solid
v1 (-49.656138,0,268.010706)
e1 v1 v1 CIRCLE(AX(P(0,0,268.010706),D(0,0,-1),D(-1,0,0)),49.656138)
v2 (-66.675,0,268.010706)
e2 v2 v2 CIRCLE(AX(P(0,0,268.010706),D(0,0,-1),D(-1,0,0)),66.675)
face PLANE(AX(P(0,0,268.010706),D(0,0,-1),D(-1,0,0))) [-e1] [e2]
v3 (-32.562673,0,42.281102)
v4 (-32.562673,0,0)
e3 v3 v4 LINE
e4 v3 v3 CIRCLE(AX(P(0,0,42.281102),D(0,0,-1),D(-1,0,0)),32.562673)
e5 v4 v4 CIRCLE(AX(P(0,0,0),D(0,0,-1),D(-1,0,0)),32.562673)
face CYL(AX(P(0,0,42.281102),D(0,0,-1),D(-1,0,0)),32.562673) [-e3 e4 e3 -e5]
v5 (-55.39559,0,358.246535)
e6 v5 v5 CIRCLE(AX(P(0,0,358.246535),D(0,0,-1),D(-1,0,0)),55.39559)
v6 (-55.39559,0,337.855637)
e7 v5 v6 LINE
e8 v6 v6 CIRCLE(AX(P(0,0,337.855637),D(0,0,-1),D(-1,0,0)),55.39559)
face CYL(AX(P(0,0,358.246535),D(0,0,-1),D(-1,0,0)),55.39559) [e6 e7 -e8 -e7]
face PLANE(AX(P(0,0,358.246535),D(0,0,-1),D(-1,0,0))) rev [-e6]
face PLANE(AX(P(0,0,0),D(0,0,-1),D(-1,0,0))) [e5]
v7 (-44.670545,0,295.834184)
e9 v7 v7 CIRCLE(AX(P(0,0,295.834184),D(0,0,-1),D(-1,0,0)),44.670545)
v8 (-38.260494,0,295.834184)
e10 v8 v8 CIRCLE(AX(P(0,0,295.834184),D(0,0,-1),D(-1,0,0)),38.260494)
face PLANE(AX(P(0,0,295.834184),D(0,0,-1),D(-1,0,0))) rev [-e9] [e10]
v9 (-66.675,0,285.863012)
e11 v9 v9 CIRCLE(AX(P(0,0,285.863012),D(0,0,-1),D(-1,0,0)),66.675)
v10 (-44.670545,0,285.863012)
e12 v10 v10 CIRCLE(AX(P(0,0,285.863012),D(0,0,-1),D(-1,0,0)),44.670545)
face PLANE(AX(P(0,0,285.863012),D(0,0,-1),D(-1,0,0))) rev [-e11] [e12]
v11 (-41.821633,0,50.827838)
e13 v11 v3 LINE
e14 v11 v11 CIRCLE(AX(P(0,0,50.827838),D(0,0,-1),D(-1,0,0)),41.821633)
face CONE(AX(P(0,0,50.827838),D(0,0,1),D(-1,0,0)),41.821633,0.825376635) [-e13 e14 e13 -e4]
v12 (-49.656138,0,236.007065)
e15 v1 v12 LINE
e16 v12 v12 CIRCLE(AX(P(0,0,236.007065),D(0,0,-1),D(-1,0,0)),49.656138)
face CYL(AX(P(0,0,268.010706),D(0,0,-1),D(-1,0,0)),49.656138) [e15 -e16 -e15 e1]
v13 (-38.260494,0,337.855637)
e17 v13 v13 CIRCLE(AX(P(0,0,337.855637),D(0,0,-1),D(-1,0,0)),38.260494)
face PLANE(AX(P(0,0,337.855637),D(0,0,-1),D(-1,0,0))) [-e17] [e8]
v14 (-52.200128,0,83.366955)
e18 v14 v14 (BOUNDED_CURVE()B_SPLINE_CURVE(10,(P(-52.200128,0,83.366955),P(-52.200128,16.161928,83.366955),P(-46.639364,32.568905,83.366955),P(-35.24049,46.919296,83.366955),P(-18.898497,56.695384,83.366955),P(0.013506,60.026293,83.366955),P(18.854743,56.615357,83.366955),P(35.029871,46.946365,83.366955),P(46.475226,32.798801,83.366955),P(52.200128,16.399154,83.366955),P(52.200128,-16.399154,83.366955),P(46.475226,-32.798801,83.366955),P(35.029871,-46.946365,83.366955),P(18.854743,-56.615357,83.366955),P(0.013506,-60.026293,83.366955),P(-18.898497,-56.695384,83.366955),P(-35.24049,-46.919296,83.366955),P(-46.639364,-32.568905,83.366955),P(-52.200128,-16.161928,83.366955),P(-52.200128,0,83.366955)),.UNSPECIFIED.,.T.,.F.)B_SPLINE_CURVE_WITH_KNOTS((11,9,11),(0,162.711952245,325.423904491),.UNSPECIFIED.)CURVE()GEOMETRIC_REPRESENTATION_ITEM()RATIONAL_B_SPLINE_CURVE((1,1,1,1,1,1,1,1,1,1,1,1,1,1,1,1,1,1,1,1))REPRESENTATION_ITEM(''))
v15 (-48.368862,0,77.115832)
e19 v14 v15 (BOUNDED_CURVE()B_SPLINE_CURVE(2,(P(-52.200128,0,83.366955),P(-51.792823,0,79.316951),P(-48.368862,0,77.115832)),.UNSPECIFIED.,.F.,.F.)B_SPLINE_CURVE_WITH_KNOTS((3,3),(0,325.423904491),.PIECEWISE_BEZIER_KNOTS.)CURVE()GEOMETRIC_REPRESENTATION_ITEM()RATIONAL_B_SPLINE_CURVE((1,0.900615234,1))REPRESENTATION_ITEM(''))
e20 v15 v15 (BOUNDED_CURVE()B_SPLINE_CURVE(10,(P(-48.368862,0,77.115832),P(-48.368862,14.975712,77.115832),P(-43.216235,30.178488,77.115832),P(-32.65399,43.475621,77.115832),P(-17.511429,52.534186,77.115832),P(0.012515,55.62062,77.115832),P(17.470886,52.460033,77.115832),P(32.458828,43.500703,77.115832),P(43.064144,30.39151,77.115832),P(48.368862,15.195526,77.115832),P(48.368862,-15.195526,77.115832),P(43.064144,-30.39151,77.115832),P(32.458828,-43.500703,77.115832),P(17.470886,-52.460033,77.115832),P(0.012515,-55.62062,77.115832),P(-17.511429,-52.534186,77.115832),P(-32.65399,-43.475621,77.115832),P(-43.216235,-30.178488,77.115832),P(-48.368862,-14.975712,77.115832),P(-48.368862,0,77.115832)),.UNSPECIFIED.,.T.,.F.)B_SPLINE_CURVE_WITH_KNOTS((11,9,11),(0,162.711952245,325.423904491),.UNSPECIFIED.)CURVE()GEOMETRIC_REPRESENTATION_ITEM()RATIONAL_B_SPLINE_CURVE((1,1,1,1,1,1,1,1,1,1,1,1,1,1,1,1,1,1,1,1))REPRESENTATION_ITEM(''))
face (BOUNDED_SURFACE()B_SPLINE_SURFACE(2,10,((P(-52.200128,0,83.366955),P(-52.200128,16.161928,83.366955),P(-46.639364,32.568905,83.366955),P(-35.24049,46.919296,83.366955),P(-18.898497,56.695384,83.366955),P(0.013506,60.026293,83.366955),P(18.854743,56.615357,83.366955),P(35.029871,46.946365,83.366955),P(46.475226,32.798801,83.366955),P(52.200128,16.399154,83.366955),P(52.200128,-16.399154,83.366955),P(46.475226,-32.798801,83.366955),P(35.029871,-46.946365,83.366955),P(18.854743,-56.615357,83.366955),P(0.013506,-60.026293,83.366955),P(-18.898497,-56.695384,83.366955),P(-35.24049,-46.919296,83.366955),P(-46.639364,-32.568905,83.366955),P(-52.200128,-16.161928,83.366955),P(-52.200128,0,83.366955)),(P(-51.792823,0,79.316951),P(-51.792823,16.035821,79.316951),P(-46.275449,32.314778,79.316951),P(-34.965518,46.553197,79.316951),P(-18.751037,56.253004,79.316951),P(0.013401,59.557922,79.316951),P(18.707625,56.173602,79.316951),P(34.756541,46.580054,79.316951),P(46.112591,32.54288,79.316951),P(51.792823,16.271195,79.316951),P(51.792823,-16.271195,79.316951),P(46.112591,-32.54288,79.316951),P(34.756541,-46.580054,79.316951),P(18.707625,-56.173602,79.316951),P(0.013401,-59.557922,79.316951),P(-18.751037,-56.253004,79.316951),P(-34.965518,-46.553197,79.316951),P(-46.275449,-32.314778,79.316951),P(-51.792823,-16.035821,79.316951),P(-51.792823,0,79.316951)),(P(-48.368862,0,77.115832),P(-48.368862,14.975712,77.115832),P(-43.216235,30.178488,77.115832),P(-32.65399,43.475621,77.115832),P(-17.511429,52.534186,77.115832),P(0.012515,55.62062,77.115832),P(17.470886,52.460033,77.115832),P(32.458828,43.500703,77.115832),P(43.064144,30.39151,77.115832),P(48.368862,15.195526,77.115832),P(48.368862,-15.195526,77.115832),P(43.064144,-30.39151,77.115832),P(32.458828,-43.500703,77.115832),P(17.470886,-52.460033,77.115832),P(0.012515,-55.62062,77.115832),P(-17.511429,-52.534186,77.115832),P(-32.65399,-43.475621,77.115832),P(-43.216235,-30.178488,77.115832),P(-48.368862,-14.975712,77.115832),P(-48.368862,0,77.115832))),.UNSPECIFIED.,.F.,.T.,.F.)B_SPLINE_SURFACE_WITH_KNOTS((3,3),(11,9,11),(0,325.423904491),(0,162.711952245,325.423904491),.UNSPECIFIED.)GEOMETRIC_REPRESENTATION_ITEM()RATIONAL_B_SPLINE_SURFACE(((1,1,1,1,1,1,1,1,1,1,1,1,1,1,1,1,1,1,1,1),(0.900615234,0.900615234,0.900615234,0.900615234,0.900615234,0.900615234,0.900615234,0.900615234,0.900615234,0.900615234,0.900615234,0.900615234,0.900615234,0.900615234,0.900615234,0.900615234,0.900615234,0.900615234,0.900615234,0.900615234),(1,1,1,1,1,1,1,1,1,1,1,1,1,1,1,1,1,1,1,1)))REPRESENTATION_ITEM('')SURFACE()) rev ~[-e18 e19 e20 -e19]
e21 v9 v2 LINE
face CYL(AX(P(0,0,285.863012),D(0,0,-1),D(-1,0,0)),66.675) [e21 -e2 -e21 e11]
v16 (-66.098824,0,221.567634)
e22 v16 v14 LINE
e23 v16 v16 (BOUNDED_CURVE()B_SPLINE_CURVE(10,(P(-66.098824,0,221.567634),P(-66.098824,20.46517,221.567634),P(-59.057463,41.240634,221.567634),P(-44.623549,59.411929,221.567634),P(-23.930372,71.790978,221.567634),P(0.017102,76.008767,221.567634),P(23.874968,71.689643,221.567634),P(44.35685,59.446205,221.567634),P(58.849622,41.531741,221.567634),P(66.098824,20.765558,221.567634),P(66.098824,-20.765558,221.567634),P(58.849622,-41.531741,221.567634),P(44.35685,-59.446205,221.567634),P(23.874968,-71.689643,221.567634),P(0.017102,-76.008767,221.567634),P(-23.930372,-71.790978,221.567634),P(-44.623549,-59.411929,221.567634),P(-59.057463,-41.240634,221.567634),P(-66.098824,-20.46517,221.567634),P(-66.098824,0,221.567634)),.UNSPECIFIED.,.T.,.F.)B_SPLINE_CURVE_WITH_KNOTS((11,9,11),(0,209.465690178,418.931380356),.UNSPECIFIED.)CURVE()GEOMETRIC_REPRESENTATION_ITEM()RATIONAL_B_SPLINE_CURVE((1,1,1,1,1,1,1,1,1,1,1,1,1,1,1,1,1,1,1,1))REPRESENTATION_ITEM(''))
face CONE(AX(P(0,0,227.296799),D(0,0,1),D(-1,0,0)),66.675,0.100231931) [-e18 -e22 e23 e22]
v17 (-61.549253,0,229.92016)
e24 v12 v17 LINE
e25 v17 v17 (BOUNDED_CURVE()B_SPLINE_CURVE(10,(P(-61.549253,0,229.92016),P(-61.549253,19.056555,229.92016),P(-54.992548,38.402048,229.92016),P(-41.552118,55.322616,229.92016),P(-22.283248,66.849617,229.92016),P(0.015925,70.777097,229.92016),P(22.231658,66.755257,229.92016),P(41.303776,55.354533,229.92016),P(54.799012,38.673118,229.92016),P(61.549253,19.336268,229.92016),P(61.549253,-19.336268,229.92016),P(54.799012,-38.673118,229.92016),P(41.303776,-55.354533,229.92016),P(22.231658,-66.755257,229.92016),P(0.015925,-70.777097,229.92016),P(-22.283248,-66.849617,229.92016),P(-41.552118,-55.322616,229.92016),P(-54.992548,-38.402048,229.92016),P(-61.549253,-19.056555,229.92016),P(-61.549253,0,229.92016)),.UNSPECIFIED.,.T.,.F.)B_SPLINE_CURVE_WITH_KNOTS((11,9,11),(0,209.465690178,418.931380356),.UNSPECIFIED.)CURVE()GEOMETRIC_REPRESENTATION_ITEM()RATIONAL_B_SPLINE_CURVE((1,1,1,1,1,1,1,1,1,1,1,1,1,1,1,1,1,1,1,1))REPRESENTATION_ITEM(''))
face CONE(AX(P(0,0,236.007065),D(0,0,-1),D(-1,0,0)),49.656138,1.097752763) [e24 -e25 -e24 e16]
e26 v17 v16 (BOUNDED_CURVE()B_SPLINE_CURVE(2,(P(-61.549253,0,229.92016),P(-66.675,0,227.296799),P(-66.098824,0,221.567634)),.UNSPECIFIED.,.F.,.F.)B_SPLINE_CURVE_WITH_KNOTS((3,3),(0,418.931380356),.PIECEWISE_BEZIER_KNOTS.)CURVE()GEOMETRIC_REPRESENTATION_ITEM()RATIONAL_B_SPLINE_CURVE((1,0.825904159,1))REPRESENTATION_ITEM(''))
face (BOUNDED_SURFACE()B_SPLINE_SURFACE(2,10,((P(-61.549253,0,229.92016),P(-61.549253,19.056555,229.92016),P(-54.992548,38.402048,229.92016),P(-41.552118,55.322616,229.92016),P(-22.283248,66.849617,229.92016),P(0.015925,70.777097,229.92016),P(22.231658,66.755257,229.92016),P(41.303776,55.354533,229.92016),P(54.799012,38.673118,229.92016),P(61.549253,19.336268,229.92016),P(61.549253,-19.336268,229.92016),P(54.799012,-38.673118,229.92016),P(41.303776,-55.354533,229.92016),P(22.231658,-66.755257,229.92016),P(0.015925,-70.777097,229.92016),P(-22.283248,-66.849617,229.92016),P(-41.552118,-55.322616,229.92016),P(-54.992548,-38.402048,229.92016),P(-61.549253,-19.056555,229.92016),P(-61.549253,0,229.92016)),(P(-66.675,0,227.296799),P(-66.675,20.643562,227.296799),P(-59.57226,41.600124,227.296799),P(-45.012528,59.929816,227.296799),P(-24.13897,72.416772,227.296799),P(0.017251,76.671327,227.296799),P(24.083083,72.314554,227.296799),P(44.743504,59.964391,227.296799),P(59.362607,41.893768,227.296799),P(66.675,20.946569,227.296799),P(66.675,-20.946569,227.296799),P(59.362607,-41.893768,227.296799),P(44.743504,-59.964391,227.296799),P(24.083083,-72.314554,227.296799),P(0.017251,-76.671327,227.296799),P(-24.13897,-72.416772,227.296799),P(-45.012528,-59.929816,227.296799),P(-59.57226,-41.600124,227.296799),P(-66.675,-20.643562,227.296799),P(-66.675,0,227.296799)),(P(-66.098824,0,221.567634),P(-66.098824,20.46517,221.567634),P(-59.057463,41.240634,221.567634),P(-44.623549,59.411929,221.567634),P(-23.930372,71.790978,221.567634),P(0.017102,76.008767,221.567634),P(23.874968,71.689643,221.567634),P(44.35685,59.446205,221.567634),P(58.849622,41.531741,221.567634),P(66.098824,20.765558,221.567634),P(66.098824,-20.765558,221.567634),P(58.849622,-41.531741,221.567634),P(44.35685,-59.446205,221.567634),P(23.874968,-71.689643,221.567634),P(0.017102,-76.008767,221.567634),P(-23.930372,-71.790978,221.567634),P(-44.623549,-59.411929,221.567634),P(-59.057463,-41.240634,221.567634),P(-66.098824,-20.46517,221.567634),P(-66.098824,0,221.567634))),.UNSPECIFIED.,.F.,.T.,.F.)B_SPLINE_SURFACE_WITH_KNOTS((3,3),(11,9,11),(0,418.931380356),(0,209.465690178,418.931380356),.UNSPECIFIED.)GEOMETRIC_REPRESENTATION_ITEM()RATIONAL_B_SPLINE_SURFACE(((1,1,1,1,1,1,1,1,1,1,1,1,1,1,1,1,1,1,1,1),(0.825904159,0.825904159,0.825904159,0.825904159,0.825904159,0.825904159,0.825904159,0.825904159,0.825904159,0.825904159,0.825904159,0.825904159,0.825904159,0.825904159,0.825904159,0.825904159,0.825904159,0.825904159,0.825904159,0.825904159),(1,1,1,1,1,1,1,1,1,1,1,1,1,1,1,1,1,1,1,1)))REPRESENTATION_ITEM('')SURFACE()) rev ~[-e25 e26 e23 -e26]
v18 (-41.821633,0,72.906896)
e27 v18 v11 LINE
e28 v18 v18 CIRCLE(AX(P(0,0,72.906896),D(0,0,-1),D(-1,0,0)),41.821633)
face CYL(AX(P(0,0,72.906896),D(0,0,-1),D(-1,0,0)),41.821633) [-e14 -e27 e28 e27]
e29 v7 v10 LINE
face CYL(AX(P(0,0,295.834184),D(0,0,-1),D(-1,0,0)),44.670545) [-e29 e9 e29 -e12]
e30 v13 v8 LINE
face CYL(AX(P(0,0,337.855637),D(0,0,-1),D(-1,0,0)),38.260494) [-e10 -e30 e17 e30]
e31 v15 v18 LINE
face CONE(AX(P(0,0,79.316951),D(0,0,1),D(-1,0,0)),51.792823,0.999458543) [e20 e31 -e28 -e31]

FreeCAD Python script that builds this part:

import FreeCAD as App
import Part
import Sketcher


def edges_at(feature, points):
    """Names of the edges that pass closest to the given points."""
    edges = feature.Shape.Edges
    near = lambda p: min(range(len(edges)), key=lambda i: edges[i].distToShape(Part.Vertex(*p))[0])
    return sorted({f"Edge{near(p) + 1}" for p in points})

doc = App.newDocument("Part")
params = doc.addObject("Spreadsheet::Sheet", "Params")
for row, (alias, value) in enumerate([
    ("revolution_angle", "360 deg"),
    ("fillet_radius", "8.434765 mm"),
], start=1):
    params.set(f"A{row}", alias)
    params.set(f"B{row}", "=" + value)
    params.setAlias(f"B{row}", alias)

body = doc.addObject("PartDesign::Body", "Body")

# Sketch on XZ plane
sketch1 = body.newObject("Sketcher::SketchObject", "Sketch")
sketch1.AttachmentSupport = (doc.getObject("XZ_Plane"), [""])
sketch1.MapMode = "FlatFace"
sketch1.addGeometry(Part.LineSegment(App.Vector(0, 0, 0), App.Vector(0, 358, 0)), False)
sketch1.addGeometry(Part.LineSegment(App.Vector(0, 358, 0), App.Vector(-55, 358, 0)), False)
sketch1.addGeometry(Part.LineSegment(App.Vector(-55, 358, 0), App.Vector(-55, 338, 0)), False)
sketch1.addGeometry(Part.LineSegment(App.Vector(-55, 338, 0), App.Vector(-38, 338, 0)), False)
sketch1.addGeometry(Part.LineSegment(App.Vector(-38, 338, 0), App.Vector(-38, 296, 0)), False)
sketch1.addGeometry(Part.LineSegment(App.Vector(-38, 296, 0), App.Vector(-45, 296, 0)), False)
sketch1.addGeometry(Part.LineSegment(App.Vector(-45, 296, 0), App.Vector(-45, 286, 0)), False)
sketch1.addGeometry(Part.LineSegment(App.Vector(-45, 286, 0), App.Vector(-67, 286, 0)), False)
sketch1.addGeometry(Part.LineSegment(App.Vector(-67, 286, 0), App.Vector(-67, 268, 0)), False)
sketch1.addGeometry(Part.LineSegment(App.Vector(-67, 268, 0), App.Vector(-50, 268, 0)), False)
sketch1.addGeometry(Part.LineSegment(App.Vector(-50, 268, 0), App.Vector(-50, 236, 0)), False)
sketch1.addGeometry(Part.LineSegment(App.Vector(-50, 236, 0), App.Vector(-67, 227, 0)), False)
sketch1.addGeometry(Part.LineSegment(App.Vector(-67, 227, 0), App.Vector(-52, 79, 0)), False)
sketch1.addGeometry(Part.LineSegment(App.Vector(-52, 79, 0), App.Vector(-42, 73, 0)), False)
sketch1.addGeometry(Part.LineSegment(App.Vector(-42, 73, 0), App.Vector(-42, 51, 0)), False)
sketch1.addGeometry(Part.LineSegment(App.Vector(-42, 51, 0), App.Vector(-33, 42, 0)), False)
sketch1.addGeometry(Part.LineSegment(App.Vector(-33, 42, 0), App.Vector(-33, 0, 0)), False)
sketch1.addGeometry(Part.LineSegment(App.Vector(-33, 0, 0), App.Vector(0, 0, 0)), False)
sketch1.addConstraint(Sketcher.Constraint("Coincident", 0, 2, 1, 1))
sketch1.addConstraint(Sketcher.Constraint("Coincident", 1, 2, 2, 1))
sketch1.addConstraint(Sketcher.Constraint("Coincident", 2, 2, 3, 1))
sketch1.addConstraint(Sketcher.Constraint("Coincident", 3, 2, 4, 1))
sketch1.addConstraint(Sketcher.Constraint("Coincident", 4, 2, 5, 1))
sketch1.addConstraint(Sketcher.Constraint("Coincident", 5, 2, 6, 1))
sketch1.addConstraint(Sketcher.Constraint("Coincident", 6, 2, 7, 1))
sketch1.addConstraint(Sketcher.Constraint("Coincident", 7, 2, 8, 1))
sketch1.addConstraint(Sketcher.Constraint("Coincident", 8, 2, 9, 1))
sketch1.addConstraint(Sketcher.Constraint("Coincident", 9, 2, 10, 1))
sketch1.addConstraint(Sketcher.Constraint("Coincident", 10, 2, 11, 1))
sketch1.addConstraint(Sketcher.Constraint("Coincident", 11, 2, 12, 1))
sketch1.addConstraint(Sketcher.Constraint("Coincident", 12, 2, 13, 1))
sketch1.addConstraint(Sketcher.Constraint("Coincident", 13, 2, 14, 1))
sketch1.addConstraint(Sketcher.Constraint("Coincident", 14, 2, 15, 1))
sketch1.addConstraint(Sketcher.Constraint("Coincident", 15, 2, 16, 1))
sketch1.addConstraint(Sketcher.Constraint("Coincident", 16, 2, 17, 1))
sketch1.addConstraint(Sketcher.Constraint("Coincident", 17, 2, 0, 1))
sketch1.addConstraint(Sketcher.Constraint("Vertical", 0))
sketch1.addConstraint(Sketcher.Constraint("Horizontal", 1))
sketch1.addConstraint(Sketcher.Constraint("Vertical", 2))
sketch1.addConstraint(Sketcher.Constraint("Horizontal", 3))
sketch1.addConstraint(Sketcher.Constraint("Vertical", 4))
sketch1.addConstraint(Sketcher.Constraint("Horizontal", 5))
sketch1.addConstraint(Sketcher.Constraint("Vertical", 6))
sketch1.addConstraint(Sketcher.Constraint("Horizontal", 7))
sketch1.addConstraint(Sketcher.Constraint("Vertical", 8))
sketch1.addConstraint(Sketcher.Constraint("Horizontal", 9))
sketch1.addConstraint(Sketcher.Constraint("Vertical", 10))
sketch1.addConstraint(Sketcher.Constraint("Vertical", 14))
sketch1.addConstraint(Sketcher.Constraint("Vertical", 16))
sketch1.addConstraint(Sketcher.Constraint("Horizontal", 17))
sketch1.addConstraint(Sketcher.Constraint("Coincident", 17, 2, -1, 1))
sketch1.addConstraint(Sketcher.Constraint("Vertical", 8, 2, 11, 2))
sketch1.addConstraint(Sketcher.Constraint("DistanceY", 16, 2, 16, 1, 42.281102))
sketch1.addConstraint(Sketcher.Constraint("DistanceX", 7, 2, -1, 1, 66.675))
sketch1.addConstraint(Sketcher.Constraint("DistanceX", 1, 2, 1, 1, 55.39559))
sketch1.addConstraint(Sketcher.Constraint("DistanceX", 5, 2, 5, 1, 6.410051))
sketch1.addConstraint(Sketcher.Constraint("DistanceX", 9, 1, 9, 2, 17.018862))
sketch1.addConstraint(Sketcher.Constraint("DistanceY", 6, 2, 6, 1, 9.971172))
sketch1.addConstraint(Sketcher.Constraint("DistanceY", 10, 2, 10, 1, 32.003641))
sketch1.addConstraint(Sketcher.Constraint("DistanceY", 14, 2, 14, 1, 22.079058))
sketch1.addConstraint(Sketcher.Constraint("DistanceY", -1, 1, 11, 2, 227.296799))
sketch1.addConstraint(Sketcher.Constraint("DistanceX", 3, 1, 3, 2, 17.135096))
sketch1.addConstraint(Sketcher.Constraint("DistanceX", 17, 1, 17, 2, 32.562673))
sketch1.addConstraint(Sketcher.Constraint("DistanceY", 0, 1, 0, 2, 358.246535))
sketch1.addConstraint(Sketcher.Constraint("DistanceY", 2, 2, 2, 1, 20.390898))
sketch1.addConstraint(Sketcher.Constraint("DistanceY", 4, 2, 4, 1, 42.021453))
sketch1.addConstraint(Sketcher.Constraint("DistanceY", 8, 2, 8, 1, 17.852306))
sketch1.addConstraint(Sketcher.Constraint("DistanceY", -1, 1, 12, 2, 79.316951))
sketch1.addConstraint(Sketcher.Constraint("DistanceX", 12, 2, 6, 2, 7.122278))
sketch1.addConstraint(Sketcher.Constraint("DistanceX", 12, 2, 13, 2, 9.97119))
sketch1.addConstraint(Sketcher.Constraint("DistanceY", 13, 2, 10, 2, 163.100169))
revolution = body.newObject("PartDesign::Revolution", "Revolution")
revolution.Profile = sketch1
revolution.ReferenceAxis = (sketch1, ["V_Axis"])
revolution.setExpression("Angle", "Params.revolution_angle")
doc.recompute()

fillet = body.newObject("PartDesign::Fillet", "Fillet")
fillet.Base = (revolution, edges_at(revolution, [(66.675, 0, 227.297), (51.793, 0, 79.317)]))
fillet.setExpression("Radius", "Params.fillet_radius")

doc.recompute()
